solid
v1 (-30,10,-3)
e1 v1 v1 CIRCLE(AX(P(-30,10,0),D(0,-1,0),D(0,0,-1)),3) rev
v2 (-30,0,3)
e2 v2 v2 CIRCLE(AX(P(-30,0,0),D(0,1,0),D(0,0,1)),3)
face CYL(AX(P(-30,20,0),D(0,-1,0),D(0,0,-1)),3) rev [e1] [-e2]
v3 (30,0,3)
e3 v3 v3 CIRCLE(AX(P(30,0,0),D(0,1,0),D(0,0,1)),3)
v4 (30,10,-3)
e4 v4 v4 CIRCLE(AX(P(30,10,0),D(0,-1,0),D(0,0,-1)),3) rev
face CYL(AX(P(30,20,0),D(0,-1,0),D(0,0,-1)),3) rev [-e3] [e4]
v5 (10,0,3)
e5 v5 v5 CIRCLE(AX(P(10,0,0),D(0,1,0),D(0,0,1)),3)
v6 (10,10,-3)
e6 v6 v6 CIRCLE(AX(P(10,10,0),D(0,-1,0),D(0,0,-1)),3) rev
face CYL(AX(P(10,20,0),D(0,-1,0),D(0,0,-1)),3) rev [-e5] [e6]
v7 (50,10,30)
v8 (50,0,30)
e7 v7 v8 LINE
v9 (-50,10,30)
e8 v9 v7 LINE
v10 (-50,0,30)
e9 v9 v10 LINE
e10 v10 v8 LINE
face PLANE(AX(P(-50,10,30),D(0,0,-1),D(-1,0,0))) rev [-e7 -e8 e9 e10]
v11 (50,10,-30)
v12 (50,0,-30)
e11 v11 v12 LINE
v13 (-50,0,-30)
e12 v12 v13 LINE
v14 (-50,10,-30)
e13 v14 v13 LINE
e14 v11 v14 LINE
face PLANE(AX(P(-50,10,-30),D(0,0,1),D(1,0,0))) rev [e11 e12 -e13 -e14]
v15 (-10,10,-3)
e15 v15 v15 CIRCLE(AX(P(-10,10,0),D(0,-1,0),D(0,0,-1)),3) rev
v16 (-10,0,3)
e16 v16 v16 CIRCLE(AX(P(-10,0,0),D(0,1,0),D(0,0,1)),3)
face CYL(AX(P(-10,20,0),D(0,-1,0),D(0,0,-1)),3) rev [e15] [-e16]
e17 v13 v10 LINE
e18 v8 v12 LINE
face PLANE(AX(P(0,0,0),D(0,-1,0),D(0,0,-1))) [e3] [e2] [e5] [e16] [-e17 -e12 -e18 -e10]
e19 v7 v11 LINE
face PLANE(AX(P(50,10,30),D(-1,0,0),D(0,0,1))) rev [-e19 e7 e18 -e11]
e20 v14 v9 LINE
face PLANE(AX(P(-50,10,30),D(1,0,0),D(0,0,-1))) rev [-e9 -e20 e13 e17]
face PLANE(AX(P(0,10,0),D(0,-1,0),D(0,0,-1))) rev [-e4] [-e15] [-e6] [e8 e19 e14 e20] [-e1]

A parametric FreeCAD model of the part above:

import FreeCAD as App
import Part
import Sketcher

V = App.Vector
Q = App.Units.Quantity


def add_polygon(sketch, points):
    """Adds a closed chain of lines whose ends are joined by coincident constraints."""
    first, n = sketch.GeometryCount, len(points)
    for a, b in zip(points, points[1:] + points[:1]):
        sketch.addGeometry(Part.LineSegment(App.Vector(*a, 0), App.Vector(*b, 0)), False)
    for i in range(n):
        sketch.addConstraint(Sketcher.Constraint("Coincident", first + i, 2, first + (i + 1) % n, 1))

doc = App.newDocument("Part")
body = doc.addObject("PartDesign::Body", "Body")

sketch1 = body.newObject("Sketcher::SketchObject", "Sketch")
sketch1.AttachmentSupport = (doc.getObject("XZ_Plane"), [""])
sketch1.MapMode = "FlatFace"
add_polygon(sketch1, [(-50, -30), (-50, 30), (50, 30), (50, -30)])
sketch1.addConstraint([
    Sketcher.Constraint("Vertical", 0),
    Sketcher.Constraint("Horizontal", 1),
    Sketcher.Constraint("Vertical", 2),
    Sketcher.Constraint("Horizontal", 3),
    Sketcher.Constraint("Symmetric", 0, 2, 2, 2, -1, 1),
    Sketcher.Constraint("DistanceX", 1, 1, 1, 2, Q("100 mm")),
    Sketcher.Constraint("DistanceY", 0, 1, 0, 2, Q("60 mm")),
])
pad1 = body.newObject("PartDesign::Pad", "Pad")
pad1.Profile = sketch1
pad1.Length = 10
pad1.Reversed = True

sketch2 = body.newObject("Sketcher::SketchObject", "Sketch001")
sketch2.AttachmentSupport = (doc.getObject("XZ_Plane"), [""])
sketch2.MapMode = "FlatFace"
sketch2.addGeometry(Part.Circle(V(-30, 0, 0), V(0, 0, 1), 3), False)
sketch2.addConstraint([
    Sketcher.Constraint("PointOnObject", 0, 3, -1),
    Sketcher.Constraint("Diameter", 0, Q("6 mm")),
    Sketcher.Constraint("DistanceX", 0, 3, -1, 1, Q("30 mm")),
])
pocket1 = body.newObject("PartDesign::Pocket", "Pocket")
pocket1.Profile = sketch2
pocket1.Length = 20
doc.recompute()

linearpattern = body.newObject("PartDesign::LinearPattern", "LinearPattern")
linearpattern.Originals = [pocket1]
linearpattern.Direction = (doc.getObject("X_Axis"), [""])
linearpattern.Mode = "offset"
linearpattern.Offset = 20
linearpattern.Occurrences = 4
body.Tip = linearpattern

doc.recompute()
